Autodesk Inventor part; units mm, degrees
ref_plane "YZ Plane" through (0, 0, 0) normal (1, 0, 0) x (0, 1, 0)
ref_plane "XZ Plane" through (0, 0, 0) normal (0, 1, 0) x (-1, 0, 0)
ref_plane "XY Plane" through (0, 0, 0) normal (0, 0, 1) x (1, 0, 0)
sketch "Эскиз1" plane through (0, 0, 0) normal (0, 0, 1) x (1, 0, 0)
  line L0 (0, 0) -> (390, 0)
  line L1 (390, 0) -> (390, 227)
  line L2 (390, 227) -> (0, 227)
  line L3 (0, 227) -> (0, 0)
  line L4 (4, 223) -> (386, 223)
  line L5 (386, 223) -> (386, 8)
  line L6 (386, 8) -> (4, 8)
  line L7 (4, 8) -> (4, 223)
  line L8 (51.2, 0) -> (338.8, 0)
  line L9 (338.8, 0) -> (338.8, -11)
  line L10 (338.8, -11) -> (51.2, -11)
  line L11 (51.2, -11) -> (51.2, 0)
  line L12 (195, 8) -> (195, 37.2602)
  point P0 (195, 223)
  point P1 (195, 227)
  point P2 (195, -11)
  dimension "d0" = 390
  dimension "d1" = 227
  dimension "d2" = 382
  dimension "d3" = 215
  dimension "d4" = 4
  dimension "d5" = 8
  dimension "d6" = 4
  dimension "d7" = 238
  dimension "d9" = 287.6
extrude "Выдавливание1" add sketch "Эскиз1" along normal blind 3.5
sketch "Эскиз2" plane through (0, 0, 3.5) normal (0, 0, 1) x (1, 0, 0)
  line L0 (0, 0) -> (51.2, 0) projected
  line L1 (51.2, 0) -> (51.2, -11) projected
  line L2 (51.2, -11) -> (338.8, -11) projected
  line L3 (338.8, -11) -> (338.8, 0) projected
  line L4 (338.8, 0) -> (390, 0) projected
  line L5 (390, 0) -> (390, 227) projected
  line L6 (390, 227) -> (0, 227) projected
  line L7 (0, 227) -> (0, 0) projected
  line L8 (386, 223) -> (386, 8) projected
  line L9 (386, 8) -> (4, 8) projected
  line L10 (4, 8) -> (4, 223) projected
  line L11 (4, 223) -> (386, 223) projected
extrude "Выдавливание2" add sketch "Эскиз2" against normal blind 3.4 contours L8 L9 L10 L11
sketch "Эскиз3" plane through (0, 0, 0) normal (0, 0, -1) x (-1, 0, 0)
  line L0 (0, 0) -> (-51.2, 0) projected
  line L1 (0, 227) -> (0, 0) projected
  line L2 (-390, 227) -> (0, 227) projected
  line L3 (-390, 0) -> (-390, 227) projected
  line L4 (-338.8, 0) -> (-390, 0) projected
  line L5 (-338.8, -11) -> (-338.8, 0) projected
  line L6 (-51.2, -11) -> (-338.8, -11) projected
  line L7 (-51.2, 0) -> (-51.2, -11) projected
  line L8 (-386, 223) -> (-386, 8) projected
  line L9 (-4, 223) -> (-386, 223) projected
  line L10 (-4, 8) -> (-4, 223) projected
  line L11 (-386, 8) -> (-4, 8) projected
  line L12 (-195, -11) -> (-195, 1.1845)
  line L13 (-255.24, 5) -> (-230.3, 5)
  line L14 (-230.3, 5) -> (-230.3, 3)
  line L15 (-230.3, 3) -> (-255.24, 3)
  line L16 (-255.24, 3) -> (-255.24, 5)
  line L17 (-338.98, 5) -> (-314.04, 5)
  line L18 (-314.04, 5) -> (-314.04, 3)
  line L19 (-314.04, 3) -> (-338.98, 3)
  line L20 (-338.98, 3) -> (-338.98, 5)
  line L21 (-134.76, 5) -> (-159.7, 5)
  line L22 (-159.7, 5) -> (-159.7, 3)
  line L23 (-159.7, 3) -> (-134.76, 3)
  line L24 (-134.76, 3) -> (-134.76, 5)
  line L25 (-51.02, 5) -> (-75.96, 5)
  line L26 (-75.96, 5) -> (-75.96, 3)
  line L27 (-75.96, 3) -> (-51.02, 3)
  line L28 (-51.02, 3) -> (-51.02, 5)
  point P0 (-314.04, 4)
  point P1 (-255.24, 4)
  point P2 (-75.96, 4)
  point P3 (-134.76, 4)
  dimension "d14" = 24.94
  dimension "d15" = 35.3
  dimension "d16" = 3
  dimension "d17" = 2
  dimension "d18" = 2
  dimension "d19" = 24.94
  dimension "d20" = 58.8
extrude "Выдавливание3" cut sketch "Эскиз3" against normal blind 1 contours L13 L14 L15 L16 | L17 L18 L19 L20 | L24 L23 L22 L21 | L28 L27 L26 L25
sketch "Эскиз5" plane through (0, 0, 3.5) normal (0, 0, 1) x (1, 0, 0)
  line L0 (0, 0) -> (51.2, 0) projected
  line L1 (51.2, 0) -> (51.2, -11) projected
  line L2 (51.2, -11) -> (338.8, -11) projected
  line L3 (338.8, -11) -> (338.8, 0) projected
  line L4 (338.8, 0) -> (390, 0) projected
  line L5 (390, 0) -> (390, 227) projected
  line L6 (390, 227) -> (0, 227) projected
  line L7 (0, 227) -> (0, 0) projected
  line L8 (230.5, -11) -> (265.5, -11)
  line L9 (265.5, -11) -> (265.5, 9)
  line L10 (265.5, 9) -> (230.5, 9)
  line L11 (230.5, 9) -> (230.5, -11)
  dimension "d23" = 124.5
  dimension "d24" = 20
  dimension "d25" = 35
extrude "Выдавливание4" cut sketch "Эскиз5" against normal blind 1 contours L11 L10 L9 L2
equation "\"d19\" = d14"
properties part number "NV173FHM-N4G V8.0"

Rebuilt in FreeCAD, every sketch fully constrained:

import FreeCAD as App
import Part
import Sketcher

doc = App.newDocument("Part")
body = doc.addObject("PartDesign::Body", "Body")

# Sketch on XY plane
sketch1 = doc.addObject("Sketcher::SketchObject", "Sketch")
body.addObject(sketch1)
sketch1.AttachmentSupport = (doc.XY_Plane, [""])
sketch1.MapMode = "FlatFace"
sketch1.addGeometry([
    Part.LineSegment(App.Vector(0, 227, 0), App.Vector(0, 0, 0)),  # 0
    Part.LineSegment(App.Vector(0, 0, 0), App.Vector(51.2, 0, 0)),  # 1
    Part.LineSegment(App.Vector(51.2, 0, 0), App.Vector(51.2, -11, 0)),  # 2
    Part.LineSegment(App.Vector(51.2, -11, 0), App.Vector(338.8, -11, 0)),  # 3
    Part.LineSegment(App.Vector(338.8, -11, 0), App.Vector(338.8, 0, 0)),  # 4
    Part.LineSegment(App.Vector(338.8, 0, 0), App.Vector(390, 0, 0)),  # 5
    Part.LineSegment(App.Vector(390, 0, 0), App.Vector(390, 227, 0)),  # 6
    Part.LineSegment(App.Vector(390, 227, 0), App.Vector(0, 227, 0)),  # 7
    Part.LineSegment(App.Vector(4, 8, 0), App.Vector(4, 223, 0)),  # 8
    Part.LineSegment(App.Vector(4, 223, 0), App.Vector(386, 223, 0)),  # 9
    Part.LineSegment(App.Vector(386, 223, 0), App.Vector(386, 8, 0)),  # 10
    Part.LineSegment(App.Vector(386, 8, 0), App.Vector(4, 8, 0)),  # 11
], False)
sketch1.addConstraint([
    Sketcher.Constraint("Coincident", 0, 2, 1, 1),
    Sketcher.Constraint("Coincident", 1, 2, 2, 1),
    Sketcher.Constraint("Coincident", 2, 2, 3, 1),
    Sketcher.Constraint("Coincident", 3, 2, 4, 1),
    Sketcher.Constraint("Coincident", 4, 2, 5, 1),
    Sketcher.Constraint("Coincident", 5, 2, 6, 1),
    Sketcher.Constraint("Coincident", 6, 2, 7, 1),
    Sketcher.Constraint("Coincident", 7, 2, 0, 1),
    Sketcher.Constraint("Coincident", 8, 2, 9, 1),
    Sketcher.Constraint("Coincident", 9, 2, 10, 1),
    Sketcher.Constraint("Coincident", 10, 2, 11, 1),
    Sketcher.Constraint("Coincident", 11, 2, 8, 1),
    Sketcher.Constraint("Vertical", 0),
    Sketcher.Constraint("Horizontal", 1),
    Sketcher.Constraint("Vertical", 2),
    Sketcher.Constraint("Horizontal", 3),
    Sketcher.Constraint("Vertical", 4),
    Sketcher.Constraint("Horizontal", 5),
    Sketcher.Constraint("Vertical", 6),
    Sketcher.Constraint("Horizontal", 7),
    Sketcher.Constraint("Vertical", 8),
    Sketcher.Constraint("Horizontal", 9),
    Sketcher.Constraint("Vertical", 10),
    Sketcher.Constraint("Horizontal", 11),
    Sketcher.Constraint("Coincident", 0, 2, -1, 1),
    Sketcher.Constraint("PointOnObject", 4, 2, -1),
    Sketcher.Constraint("Equal", 1, 5),
    Sketcher.Constraint("DistanceX", 7, 2, 7, 1, 390.0),
    Sketcher.Constraint("DistanceX", 9, 1, 9, 2, 382.0),
    Sketcher.Constraint("DistanceY", 0, 2, 0, 1, 227.0),
    Sketcher.Constraint("DistanceY", 8, 1, 8, 2, 215.0),
    Sketcher.Constraint("DistanceX", 3, 1, 3, 2, 287.6),
    Sketcher.Constraint("DistanceX", -1, 1, 8, 2, 4.0),
    Sketcher.Constraint("DistanceY", -1, 1, 10, 2, 8.0),
    Sketcher.Constraint("DistanceY", 3, 2, 6, 2, 238.0),
])
pad1 = doc.addObject("PartDesign::Pad", "Pad")
body.addObject(pad1)
pad1.Profile = sketch1
pad1.Length = 3.5

# Sketch on XY plane
sketch2 = doc.addObject("Sketcher::SketchObject", "Sketch001")
body.addObject(sketch2)
sketch2.AttachmentSupport = (doc.XY_Plane, [""])
sketch2.MapMode = "FlatFace"
sketch2.AttachmentOffset = App.Placement(App.Vector(0, 0, 3.5), App.Rotation())
sketch2.addGeometry([
    Part.LineSegment(App.Vector(386, 8, 0), App.Vector(386, 223, 0)),
    Part.LineSegment(App.Vector(386, 223, 0), App.Vector(4, 223, 0)),
    Part.LineSegment(App.Vector(4, 223, 0), App.Vector(4, 8, 0)),
    Part.LineSegment(App.Vector(4, 8, 0), App.Vector(386, 8, 0)),
], False)
sketch2.addConstraint([
    Sketcher.Constraint("Coincident", 0, 2, 1, 1),
    Sketcher.Constraint("Coincident", 1, 2, 2, 1),
    Sketcher.Constraint("Coincident", 2, 2, 3, 1),
    Sketcher.Constraint("Coincident", 3, 2, 0, 1),
    Sketcher.Constraint("Vertical", 0),
    Sketcher.Constraint("Horizontal", 1),
    Sketcher.Constraint("Vertical", 2),
    Sketcher.Constraint("Horizontal", 3),
    Sketcher.Constraint("DistanceX", 1, 2, 1, 1, 382.0),
    Sketcher.Constraint("DistanceY", 0, 1, 0, 2, 215.0),
    Sketcher.Constraint("DistanceX", -1, 1, 0, 2, 386.0),
    Sketcher.Constraint("DistanceY", -1, 1, 0, 2, 223.0),
])
pad2 = doc.addObject("PartDesign::Pad", "Pad001")
body.addObject(pad2)
pad2.Profile = sketch2
pad2.Length = 3.4
pad2.Reversed = True

# Sketch on XY plane
sketch3 = doc.addObject("Sketcher::SketchObject", "Sketch002")
body.addObject(sketch3)
sketch3.AttachmentSupport = (doc.XY_Plane, [""])
sketch3.MapMode = "FlatFace"
sketch3.addGeometry([
    Part.LineSegment(App.Vector(230.3, 5, 0), App.Vector(255.24, 5, 0)),  # 0
    Part.LineSegment(App.Vector(255.24, 5, 0), App.Vector(255.24, 3, 0)),  # 1
    Part.LineSegment(App.Vector(255.24, 3, 0), App.Vector(230.3, 3, 0)),  # 2
    Part.LineSegment(App.Vector(230.3, 3, 0), App.Vector(230.3, 5, 0)),  # 3
    Part.LineSegment(App.Vector(314.04, 5, 0), App.Vector(338.98, 5, 0)),  # 4
    Part.LineSegment(App.Vector(338.98, 5, 0), App.Vector(338.98, 3, 0)),  # 5
    Part.LineSegment(App.Vector(338.98, 3, 0), App.Vector(314.04, 3, 0)),  # 6
    Part.LineSegment(App.Vector(314.04, 3, 0), App.Vector(314.04, 5, 0)),  # 7
    Part.LineSegment(App.Vector(134.76, 3, 0), App.Vector(134.76, 5, 0)),  # 8
    Part.LineSegment(App.Vector(134.76, 5, 0), App.Vector(159.7, 5, 0)),  # 9
    Part.LineSegment(App.Vector(159.7, 5, 0), App.Vector(159.7, 3, 0)),  # 10
    Part.LineSegment(App.Vector(159.7, 3, 0), App.Vector(134.76, 3, 0)),  # 11
    Part.LineSegment(App.Vector(51.02, 3, 0), App.Vector(51.02, 5, 0)),  # 12
    Part.LineSegment(App.Vector(51.02, 5, 0), App.Vector(75.96, 5, 0)),  # 13
    Part.LineSegment(App.Vector(75.96, 5, 0), App.Vector(75.96, 3, 0)),  # 14
    Part.LineSegment(App.Vector(75.96, 3, 0), App.Vector(51.02, 3, 0)),  # 15
], False)
sketch3.addConstraint([
    Sketcher.Constraint("Coincident", 0, 2, 1, 1),
    Sketcher.Constraint("Coincident", 1, 2, 2, 1),
    Sketcher.Constraint("Coincident", 2, 2, 3, 1),
    Sketcher.Constraint("Coincident", 3, 2, 0, 1),
    Sketcher.Constraint("Coincident", 4, 2, 5, 1),
    Sketcher.Constraint("Coincident", 5, 2, 6, 1),
    Sketcher.Constraint("Coincident", 6, 2, 7, 1),
    Sketcher.Constraint("Coincident", 7, 2, 4, 1),
    Sketcher.Constraint("Coincident", 8, 2, 9, 1),
    Sketcher.Constraint("Coincident", 9, 2, 10, 1),
    Sketcher.Constraint("Coincident", 10, 2, 11, 1),
    Sketcher.Constraint("Coincident", 11, 2, 8, 1),
    Sketcher.Constraint("Coincident", 12, 2, 13, 1),
    Sketcher.Constraint("Coincident", 13, 2, 14, 1),
    Sketcher.Constraint("Coincident", 14, 2, 15, 1),
    Sketcher.Constraint("Coincident", 15, 2, 12, 1),
    Sketcher.Constraint("Horizontal", 0),
    Sketcher.Constraint("Vertical", 1),
    Sketcher.Constraint("Horizontal", 2),
    Sketcher.Constraint("Vertical", 3),
    Sketcher.Constraint("Horizontal", 4),
    Sketcher.Constraint("Vertical", 5),
    Sketcher.Constraint("Horizontal", 6),
    Sketcher.Constraint("Vertical", 7),
    Sketcher.Constraint("Vertical", 8),
    Sketcher.Constraint("Horizontal", 9),
    Sketcher.Constraint("Vertical", 10),
    Sketcher.Constraint("Horizontal", 11),
    Sketcher.Constraint("Vertical", 12),
    Sketcher.Constraint("Horizontal", 13),
    Sketcher.Constraint("Vertical", 14),
    Sketcher.Constraint("Horizontal", 15),
    Sketcher.Constraint("Horizontal", 3, 2, 4, 2),
    Sketcher.Constraint("Horizontal", 2, 2, 5, 2),
    Sketcher.Constraint("Horizontal", 7, 2, 8, 2),
    Sketcher.Constraint("Horizontal", 6, 2, 10, 2),
    Sketcher.Constraint("Horizontal", 9, 2, 12, 2),
    Sketcher.Constraint("Horizontal", 11, 2, 14, 2),
    Sketcher.Constraint("Equal", 2, 4),
    Sketcher.Constraint("Equal", 6, 9),
    Sketcher.Constraint("Equal", 11, 13),
    Sketcher.Constraint("DistanceY", 1, 2, 1, 1, 2.0),
    Sketcher.Constraint("DistanceY", -1, 1, 1, 2, 3.0),
    Sketcher.Constraint("DistanceX", 0, 1, 0, 2, 24.94),
    Sketcher.Constraint("DistanceX", 1, 2, 6, 2, 58.8),
    Sketcher.Constraint("DistanceX", 13, 2, 8, 2, 58.8),
    Sketcher.Constraint("DistanceX", -1, 1, 2, 2, 230.3),
    Sketcher.Constraint("DistanceX", -1, 1, 9, 2, 159.7),
])
pocket1 = doc.addObject("PartDesign::Pocket", "Pocket")
body.addObject(pocket1)
pocket1.Profile = sketch3
pocket1.Length = 1
pocket1.Reversed = True

# Sketch on XY plane
sketch4 = doc.addObject("Sketcher::SketchObject", "Sketch003")
body.addObject(sketch4)
sketch4.AttachmentSupport = (doc.XY_Plane, [""])
sketch4.MapMode = "FlatFace"
sketch4.AttachmentOffset = App.Placement(App.Vector(0, 0, 3.5), App.Rotation())
sketch4.addGeometry([
    Part.LineSegment(App.Vector(230.5, 9, 0), App.Vector(230.5, -11, 0)),
    Part.LineSegment(App.Vector(230.5, -11, 0), App.Vector(265.5, -11, 0)),
    Part.LineSegment(App.Vector(265.5, -11, 0), App.Vector(265.5, 9, 0)),
    Part.LineSegment(App.Vector(265.5, 9, 0), App.Vector(230.5, 9, 0)),
], False)
sketch4.addConstraint([
    Sketcher.Constraint("Coincident", 0, 2, 1, 1),
    Sketcher.Constraint("Coincident", 1, 2, 2, 1),
    Sketcher.Constraint("Coincident", 2, 2, 3, 1),
    Sketcher.Constraint("Coincident", 3, 2, 0, 1),
    Sketcher.Constraint("Vertical", 0),
    Sketcher.Constraint("Horizontal", 1),
    Sketcher.Constraint("Vertical", 2),
    Sketcher.Constraint("Horizontal", 3),
    Sketcher.Constraint("DistanceX", 1, 1, 1, 2, 35.0),
    Sketcher.Constraint("DistanceY", 0, 2, 0, 1, 20.0),
    Sketcher.Constraint("DistanceY", 0, 2, -1, 1, 11.0),
    Sketcher.Constraint("DistanceX", -1, 1, 0, 2, 230.5),
])
pocket2 = doc.addObject("PartDesign::Pocket", "Pocket001")
body.addObject(pocket2)
pocket2.Profile = sketch4
pocket2.Length = 1

doc.recompute()
